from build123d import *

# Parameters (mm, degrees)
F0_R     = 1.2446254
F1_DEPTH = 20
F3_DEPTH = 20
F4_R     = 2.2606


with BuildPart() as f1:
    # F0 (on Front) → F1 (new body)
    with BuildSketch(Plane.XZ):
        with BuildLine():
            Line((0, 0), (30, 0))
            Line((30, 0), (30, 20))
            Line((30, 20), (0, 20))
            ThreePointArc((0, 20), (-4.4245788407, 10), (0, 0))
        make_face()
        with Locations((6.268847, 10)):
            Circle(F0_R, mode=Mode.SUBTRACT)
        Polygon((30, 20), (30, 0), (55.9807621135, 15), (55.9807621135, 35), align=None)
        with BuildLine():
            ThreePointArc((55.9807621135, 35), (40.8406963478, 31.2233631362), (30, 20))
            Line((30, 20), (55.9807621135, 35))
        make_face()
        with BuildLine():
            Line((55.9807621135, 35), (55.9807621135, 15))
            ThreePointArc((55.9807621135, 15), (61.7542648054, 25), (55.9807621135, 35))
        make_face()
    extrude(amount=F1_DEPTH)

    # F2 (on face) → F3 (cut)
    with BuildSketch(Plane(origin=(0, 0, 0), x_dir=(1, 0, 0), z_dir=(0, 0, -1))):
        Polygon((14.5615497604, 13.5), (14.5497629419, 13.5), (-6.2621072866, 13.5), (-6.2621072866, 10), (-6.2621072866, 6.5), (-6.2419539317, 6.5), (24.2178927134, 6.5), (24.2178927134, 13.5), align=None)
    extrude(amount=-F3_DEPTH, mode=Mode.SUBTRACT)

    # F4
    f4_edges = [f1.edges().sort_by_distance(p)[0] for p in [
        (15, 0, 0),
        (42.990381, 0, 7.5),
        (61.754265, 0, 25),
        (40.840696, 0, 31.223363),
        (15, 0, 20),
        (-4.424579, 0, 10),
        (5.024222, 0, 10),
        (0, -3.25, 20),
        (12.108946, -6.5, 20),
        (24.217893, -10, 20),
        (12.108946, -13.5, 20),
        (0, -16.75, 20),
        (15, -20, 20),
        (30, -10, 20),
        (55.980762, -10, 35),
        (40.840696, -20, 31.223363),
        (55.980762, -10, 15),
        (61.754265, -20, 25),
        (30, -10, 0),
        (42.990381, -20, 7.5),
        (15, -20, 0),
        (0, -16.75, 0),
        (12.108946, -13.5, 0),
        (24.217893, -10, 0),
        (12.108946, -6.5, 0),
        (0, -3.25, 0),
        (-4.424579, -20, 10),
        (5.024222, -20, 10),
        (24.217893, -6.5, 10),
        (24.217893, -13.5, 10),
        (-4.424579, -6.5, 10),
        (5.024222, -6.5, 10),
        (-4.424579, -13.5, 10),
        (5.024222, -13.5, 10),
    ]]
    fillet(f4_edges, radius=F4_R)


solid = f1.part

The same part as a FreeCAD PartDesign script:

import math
import FreeCAD as App
import Part
import Sketcher
from FreeCAD import Vector
Q = App.Units.Quantity


def add_polygon(sketch, points):
    """Adds a closed chain of lines whose ends are joined by coincident constraints."""
    first, n = sketch.GeometryCount, len(points)
    for a, b in zip(points, points[1:] + points[:1]):
        sketch.addGeometry(Part.LineSegment(App.Vector(*a, 0), App.Vector(*b, 0)), False)
    for i in range(n):
        sketch.addConstraint(Sketcher.Constraint("Coincident", first + i, 2, first + (i + 1) % n, 1))

doc = App.newDocument("Part")
body = doc.addObject("PartDesign::Body", "Body")

sketch1 = doc.addObject("Sketcher::SketchObject", "Sketch")
body.addObject(sketch1)
sketch1.AttachmentSupport = (doc.XZ_Plane, [""])
sketch1.MapMode = "FlatFace"
sketch1.addGeometry([
    Part.LineSegment(Vector(0, 0, 0), Vector(30, 0, 0)),
    Part.LineSegment(Vector(30, 0, 0), Vector(56, 15, 0)),
    Part.ArcOfCircle(Part.Circle(Vector(50.2, 25, 0), Vector(0, 0, 1), 11.5), math.radians(-60), math.radians(60)),
    Part.ArcOfCircle(Part.Circle(Vector(55, 6.7, 0), Vector(0, 0, 1), 28.3), math.radians(88), math.radians(152)),
    Part.LineSegment(Vector(30, 20, 0), Vector(0, 20, 0)),
    Part.ArcOfCircle(Part.Circle(Vector(9.1, 10, 0), Vector(0, 0, 1), 13.5), math.radians(132), math.radians(228)),
    Part.Circle(Vector(6.3, 10, 0), Vector(0, 0, 1), 1.2),
], False)
sketch1.addConstraint([
    Sketcher.Constraint("Coincident", 0, 2, 1, 1),
    Sketcher.Constraint("Tangent", 1, 2, 2, 1),
    Sketcher.Constraint("Coincident", 2, 2, 3, 1),
    Sketcher.Constraint("Coincident", 3, 2, 4, 1),
    Sketcher.Constraint("Coincident", 4, 2, 5, 1),
    Sketcher.Constraint("Coincident", 5, 2, 0, 1),
    Sketcher.Constraint("Horizontal", 0),
    Sketcher.Constraint("Horizontal", 4),
    Sketcher.Constraint("Coincident", 5, 2, -1, 1),
    Sketcher.Constraint("PointOnObject", 4, 2, -2),
    Sketcher.Constraint("Horizontal", 5, 3, 6, 3),
    Sketcher.Constraint("Vertical", 1, 2, 2, 2),
    Sketcher.Constraint("Vertical", 0, 2, 3, 2),
    Sketcher.Constraint("DistanceX", 0, 1, 0, 2, Q("30 mm")),
    Sketcher.Constraint("Angle", 1, Q("30 deg")),
    Sketcher.Constraint("Distance", 1, Q("30 mm")),
    Sketcher.Constraint("DistanceY", -1, 1, 2, 3, Q("25 mm")),
    Sketcher.Constraint("DistanceY", -1, 1, 5, 3, Q("10 mm")),
    Sketcher.Constraint("Radius", 5, Q("13.5128 mm")),
    Sketcher.Constraint("Diameter", 6, Q("2.489251 mm")),
    Sketcher.Constraint("Radius", 3, Q("28.316313 mm")),
    Sketcher.Constraint("DistanceX", -1, 1, 6, 3, Q("6.268847 mm")),
])
pad1 = doc.addObject("PartDesign::Pad", "Pad")
body.addObject(pad1)
pad1.Profile = sketch1
pad1.Length = 20

sketch2 = doc.addObject("Sketcher::SketchObject", "Sketch001")
body.addObject(sketch2)
sketch2.AttachmentSupport = (doc.XY_Plane, [""])
sketch2.MapMode = "FlatFace"
add_polygon(sketch2, [(-6, -14), (-6, -6), (24, -6), (24, -14)])
sketch2.addConstraint([
    Sketcher.Constraint("Vertical", 0),
    Sketcher.Constraint("Horizontal", 1),
    Sketcher.Constraint("Vertical", 2),
    Sketcher.Constraint("Horizontal", 3),
    Sketcher.Constraint("DistanceY", 0, 1, 0, 2, Q("7 mm")),
    Sketcher.Constraint("DistanceX", 1, 1, 1, 2, Q("30.48 mm")),
    Sketcher.Constraint("DistanceY", 0, 2, -1, 1, Q("6.5 mm")),
    Sketcher.Constraint("DistanceX", 0, 2, -1, 1, Q("6.262107 mm")),
])
pocket1 = doc.addObject("PartDesign::Pocket", "Pocket")
body.addObject(pocket1)
pocket1.Profile = sketch2
pocket1.Length = 20
pocket1.Reversed = True
doc.recompute()

fillet = doc.addObject("PartDesign::Fillet", "Fillet")
body.addObject(fillet)
fillet.Base = (pocket1, ["Edge1"])
fillet.UseAllEdges = True
fillet.Radius = 2.2606

doc.recompute()
